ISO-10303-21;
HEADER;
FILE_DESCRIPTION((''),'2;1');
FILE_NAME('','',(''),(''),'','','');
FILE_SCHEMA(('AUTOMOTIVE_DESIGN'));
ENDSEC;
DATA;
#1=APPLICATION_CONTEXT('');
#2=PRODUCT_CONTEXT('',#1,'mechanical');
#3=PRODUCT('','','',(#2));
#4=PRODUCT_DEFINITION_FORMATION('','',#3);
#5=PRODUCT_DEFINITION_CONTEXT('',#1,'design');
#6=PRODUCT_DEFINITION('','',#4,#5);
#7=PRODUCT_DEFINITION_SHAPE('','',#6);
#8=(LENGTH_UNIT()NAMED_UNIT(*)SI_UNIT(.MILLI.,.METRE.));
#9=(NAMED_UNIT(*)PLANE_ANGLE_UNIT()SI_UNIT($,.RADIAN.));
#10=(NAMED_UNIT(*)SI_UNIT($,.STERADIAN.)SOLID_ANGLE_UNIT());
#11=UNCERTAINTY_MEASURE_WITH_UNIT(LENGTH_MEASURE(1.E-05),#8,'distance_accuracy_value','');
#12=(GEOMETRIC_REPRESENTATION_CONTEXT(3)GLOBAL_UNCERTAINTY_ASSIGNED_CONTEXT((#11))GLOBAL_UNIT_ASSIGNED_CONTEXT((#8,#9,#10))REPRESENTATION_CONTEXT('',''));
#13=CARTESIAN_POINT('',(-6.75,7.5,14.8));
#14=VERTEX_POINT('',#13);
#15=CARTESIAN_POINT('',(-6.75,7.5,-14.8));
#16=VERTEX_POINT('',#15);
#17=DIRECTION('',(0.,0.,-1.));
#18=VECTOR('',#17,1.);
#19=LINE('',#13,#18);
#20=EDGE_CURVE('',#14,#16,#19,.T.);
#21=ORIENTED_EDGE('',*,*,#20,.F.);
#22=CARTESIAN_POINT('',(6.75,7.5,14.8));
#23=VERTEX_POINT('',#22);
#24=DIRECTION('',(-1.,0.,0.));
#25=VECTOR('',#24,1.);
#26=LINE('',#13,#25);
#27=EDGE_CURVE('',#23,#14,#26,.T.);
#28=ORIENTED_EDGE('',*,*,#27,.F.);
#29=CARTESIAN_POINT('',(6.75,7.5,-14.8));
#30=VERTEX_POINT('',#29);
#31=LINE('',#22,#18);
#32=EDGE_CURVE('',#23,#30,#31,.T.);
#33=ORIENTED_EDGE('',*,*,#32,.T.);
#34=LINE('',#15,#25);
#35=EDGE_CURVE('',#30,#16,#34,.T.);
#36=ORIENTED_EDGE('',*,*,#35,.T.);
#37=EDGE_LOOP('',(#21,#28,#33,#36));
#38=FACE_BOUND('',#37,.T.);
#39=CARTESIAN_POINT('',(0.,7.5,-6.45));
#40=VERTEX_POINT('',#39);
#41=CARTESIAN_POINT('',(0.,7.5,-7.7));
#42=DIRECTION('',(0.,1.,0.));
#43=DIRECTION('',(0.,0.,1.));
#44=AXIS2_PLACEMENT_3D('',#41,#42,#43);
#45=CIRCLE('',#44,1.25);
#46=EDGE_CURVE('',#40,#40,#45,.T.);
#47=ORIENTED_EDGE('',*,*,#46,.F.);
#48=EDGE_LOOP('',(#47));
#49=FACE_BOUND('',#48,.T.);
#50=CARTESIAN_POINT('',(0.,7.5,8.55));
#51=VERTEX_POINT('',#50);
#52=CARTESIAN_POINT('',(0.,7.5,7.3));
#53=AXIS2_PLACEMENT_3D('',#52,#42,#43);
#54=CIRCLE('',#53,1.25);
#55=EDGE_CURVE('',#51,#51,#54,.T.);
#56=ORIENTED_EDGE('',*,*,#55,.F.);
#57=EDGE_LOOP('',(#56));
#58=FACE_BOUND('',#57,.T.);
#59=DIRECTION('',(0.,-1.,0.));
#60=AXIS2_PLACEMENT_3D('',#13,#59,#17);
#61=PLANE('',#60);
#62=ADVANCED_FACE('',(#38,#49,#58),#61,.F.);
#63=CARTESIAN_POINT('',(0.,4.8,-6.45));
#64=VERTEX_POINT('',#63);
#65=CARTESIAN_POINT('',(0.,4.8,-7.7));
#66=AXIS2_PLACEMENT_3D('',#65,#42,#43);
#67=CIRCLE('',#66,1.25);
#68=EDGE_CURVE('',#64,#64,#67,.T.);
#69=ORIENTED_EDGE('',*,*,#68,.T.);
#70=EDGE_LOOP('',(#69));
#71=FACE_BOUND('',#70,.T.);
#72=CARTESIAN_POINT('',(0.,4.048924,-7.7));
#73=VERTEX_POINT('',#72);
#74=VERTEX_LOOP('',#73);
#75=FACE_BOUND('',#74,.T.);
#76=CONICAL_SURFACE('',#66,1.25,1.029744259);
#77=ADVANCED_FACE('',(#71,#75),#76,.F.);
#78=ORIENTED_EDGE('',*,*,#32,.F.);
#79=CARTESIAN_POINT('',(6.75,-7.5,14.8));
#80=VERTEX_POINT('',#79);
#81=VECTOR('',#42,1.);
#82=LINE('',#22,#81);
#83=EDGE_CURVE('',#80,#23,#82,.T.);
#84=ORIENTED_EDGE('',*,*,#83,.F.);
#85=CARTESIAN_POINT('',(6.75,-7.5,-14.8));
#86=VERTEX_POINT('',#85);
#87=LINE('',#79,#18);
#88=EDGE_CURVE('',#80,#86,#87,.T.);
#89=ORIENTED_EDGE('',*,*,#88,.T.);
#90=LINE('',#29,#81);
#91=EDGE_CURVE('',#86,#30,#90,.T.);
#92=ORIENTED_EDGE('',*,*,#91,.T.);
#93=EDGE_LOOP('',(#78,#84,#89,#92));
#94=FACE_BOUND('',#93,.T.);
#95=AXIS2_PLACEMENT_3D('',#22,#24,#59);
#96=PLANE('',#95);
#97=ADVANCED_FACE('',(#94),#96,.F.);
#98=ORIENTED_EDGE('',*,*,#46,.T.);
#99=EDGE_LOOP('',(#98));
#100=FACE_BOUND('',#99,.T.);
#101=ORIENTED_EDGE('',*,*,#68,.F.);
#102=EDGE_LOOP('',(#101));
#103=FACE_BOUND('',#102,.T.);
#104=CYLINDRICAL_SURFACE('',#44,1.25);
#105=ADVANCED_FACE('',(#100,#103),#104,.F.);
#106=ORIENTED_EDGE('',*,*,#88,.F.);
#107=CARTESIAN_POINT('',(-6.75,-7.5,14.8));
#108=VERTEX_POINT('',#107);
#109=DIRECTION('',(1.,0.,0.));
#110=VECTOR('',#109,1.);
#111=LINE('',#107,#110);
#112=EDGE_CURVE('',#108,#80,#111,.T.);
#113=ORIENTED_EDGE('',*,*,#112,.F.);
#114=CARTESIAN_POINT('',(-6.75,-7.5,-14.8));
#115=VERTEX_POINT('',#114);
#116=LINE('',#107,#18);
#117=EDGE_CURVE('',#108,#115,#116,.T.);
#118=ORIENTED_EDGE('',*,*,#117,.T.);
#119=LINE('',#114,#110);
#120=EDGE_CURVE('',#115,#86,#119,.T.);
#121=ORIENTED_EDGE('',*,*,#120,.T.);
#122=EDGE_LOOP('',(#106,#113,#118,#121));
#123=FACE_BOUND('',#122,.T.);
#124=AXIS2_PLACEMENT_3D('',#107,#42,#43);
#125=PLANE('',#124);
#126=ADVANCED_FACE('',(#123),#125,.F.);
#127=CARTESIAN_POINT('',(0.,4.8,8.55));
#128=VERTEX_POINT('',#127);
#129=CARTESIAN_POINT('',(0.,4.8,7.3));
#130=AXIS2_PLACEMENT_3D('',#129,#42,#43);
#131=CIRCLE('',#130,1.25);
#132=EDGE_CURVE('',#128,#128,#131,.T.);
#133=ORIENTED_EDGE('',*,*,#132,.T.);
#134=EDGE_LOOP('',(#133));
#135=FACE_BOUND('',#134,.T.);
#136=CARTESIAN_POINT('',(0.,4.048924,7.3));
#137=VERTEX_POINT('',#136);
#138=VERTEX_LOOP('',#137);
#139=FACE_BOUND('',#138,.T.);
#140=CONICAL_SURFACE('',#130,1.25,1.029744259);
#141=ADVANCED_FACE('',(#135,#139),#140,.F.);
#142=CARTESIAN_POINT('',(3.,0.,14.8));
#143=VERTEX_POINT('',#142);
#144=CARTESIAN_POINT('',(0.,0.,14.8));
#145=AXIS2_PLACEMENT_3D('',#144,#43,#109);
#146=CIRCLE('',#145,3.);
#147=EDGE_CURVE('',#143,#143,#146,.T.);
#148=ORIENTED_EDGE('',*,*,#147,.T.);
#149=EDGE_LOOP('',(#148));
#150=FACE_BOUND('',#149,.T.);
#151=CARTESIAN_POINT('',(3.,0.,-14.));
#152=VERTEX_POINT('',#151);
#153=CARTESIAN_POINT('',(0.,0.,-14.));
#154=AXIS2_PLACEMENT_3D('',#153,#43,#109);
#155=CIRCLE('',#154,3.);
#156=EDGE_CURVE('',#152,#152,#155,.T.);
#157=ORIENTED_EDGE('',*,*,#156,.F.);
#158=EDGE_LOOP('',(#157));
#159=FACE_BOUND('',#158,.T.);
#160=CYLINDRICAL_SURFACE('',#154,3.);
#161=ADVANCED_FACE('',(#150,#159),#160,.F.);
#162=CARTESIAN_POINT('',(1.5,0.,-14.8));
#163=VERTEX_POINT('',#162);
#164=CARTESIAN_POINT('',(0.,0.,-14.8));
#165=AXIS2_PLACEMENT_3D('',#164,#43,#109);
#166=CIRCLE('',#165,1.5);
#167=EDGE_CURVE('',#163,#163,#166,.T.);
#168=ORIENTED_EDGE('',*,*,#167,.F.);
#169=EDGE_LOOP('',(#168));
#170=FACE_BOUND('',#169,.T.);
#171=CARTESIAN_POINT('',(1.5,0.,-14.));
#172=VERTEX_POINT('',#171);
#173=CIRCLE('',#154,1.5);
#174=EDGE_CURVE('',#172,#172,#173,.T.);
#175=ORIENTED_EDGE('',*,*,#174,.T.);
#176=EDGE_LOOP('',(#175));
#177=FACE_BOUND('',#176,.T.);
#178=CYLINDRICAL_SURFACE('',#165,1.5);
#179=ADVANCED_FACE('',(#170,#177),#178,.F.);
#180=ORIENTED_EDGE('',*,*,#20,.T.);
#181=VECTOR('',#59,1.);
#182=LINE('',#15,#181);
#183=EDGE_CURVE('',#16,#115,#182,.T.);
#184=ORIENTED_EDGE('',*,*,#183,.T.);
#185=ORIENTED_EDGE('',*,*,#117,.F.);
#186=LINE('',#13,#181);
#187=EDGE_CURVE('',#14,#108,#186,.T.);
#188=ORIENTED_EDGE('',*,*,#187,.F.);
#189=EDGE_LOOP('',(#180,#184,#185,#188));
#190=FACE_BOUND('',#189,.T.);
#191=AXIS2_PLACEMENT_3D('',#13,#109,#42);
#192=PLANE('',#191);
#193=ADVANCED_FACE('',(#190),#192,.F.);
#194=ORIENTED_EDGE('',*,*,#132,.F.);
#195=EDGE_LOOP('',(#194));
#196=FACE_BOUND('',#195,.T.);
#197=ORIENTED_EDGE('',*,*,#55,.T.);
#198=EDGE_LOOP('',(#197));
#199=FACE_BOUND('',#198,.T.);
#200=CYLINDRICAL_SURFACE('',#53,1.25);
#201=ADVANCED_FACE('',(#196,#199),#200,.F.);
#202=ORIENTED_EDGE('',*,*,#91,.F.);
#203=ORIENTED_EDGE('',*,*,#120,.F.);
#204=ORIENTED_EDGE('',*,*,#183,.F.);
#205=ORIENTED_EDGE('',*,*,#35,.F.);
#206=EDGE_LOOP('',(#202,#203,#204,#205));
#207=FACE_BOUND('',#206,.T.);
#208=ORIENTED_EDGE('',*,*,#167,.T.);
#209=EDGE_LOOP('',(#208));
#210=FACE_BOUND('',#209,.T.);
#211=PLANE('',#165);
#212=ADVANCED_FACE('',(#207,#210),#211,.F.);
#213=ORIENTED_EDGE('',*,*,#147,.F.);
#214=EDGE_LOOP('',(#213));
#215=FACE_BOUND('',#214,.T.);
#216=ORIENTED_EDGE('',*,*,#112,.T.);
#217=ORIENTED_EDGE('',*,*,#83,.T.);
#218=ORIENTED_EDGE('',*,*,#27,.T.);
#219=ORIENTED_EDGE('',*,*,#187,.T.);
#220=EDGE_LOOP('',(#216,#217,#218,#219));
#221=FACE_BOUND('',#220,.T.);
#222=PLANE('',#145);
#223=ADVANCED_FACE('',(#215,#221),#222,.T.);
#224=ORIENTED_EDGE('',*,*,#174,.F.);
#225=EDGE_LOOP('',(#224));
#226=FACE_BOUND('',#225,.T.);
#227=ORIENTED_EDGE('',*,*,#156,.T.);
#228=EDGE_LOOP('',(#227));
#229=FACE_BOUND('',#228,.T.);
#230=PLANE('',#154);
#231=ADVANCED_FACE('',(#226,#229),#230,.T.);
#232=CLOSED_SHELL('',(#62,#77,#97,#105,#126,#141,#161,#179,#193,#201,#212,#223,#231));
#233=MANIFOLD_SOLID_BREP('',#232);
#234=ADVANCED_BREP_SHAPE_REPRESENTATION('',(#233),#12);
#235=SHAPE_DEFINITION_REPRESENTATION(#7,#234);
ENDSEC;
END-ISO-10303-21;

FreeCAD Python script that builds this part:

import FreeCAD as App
import Part
import Sketcher
from FreeCAD import Vector


def add_polygon(sketch, points):
    """Adds a closed chain of lines whose ends are joined by coincident constraints."""
    first, n = sketch.GeometryCount, len(points)
    for a, b in zip(points, points[1:] + points[:1]):
        sketch.addGeometry(Part.LineSegment(App.Vector(*a, 0), App.Vector(*b, 0)), False)
    for i in range(n):
        sketch.addConstraint(Sketcher.Constraint("Coincident", first + i, 2, first + (i + 1) % n, 1))

doc = App.newDocument("Part")
body = doc.addObject("PartDesign::Body", "Body")

# Sketch on XY plane
sketch1 = doc.addObject("Sketcher::SketchObject", "Sketch")
body.addObject(sketch1)
sketch1.AttachmentSupport = (doc.XY_Plane, [""])
sketch1.MapMode = "FlatFace"
add_polygon(sketch1, [(-7, 8), (-7, -8), (7, -8), (7, 8)])  # lines 0-3
sketch1.addConstraint(Sketcher.Constraint("Vertical", 0))
sketch1.addConstraint(Sketcher.Constraint("Horizontal", 1))
sketch1.addConstraint(Sketcher.Constraint("Vertical", 2))
sketch1.addConstraint(Sketcher.Constraint("Horizontal", 3))
sketch1.addConstraint(Sketcher.Constraint("Symmetric", 0, 2, 2, 2, -1, 1))
sketch1.addConstraint(Sketcher.Constraint("DistanceY", 0, 2, 0, 1, 15.0))
sketch1.addConstraint(Sketcher.Constraint("DistanceX", 1, 1, 1, 2, 13.5))
pad1 = doc.addObject("PartDesign::Pad", "Pad")
body.addObject(pad1)
pad1.Profile = sketch1
pad1.Length = 29.6
pad1.Midplane = True

# Sketch on XY plane
sketch2 = doc.addObject("Sketcher::SketchObject", "Sketch001")
body.addObject(sketch2)
sketch2.AttachmentSupport = (doc.XY_Plane, [""])
sketch2.MapMode = "FlatFace"
sketch2.AttachmentOffset = App.Placement(Vector(0, 0, 14.8), App.Rotation())
sketch2.addGeometry(Part.Circle(Vector(0, 0, 0), Vector(0, 0, 1), 3), False)
sketch2.addConstraint(Sketcher.Constraint("Coincident", 0, 3, -1, 1))
sketch2.addConstraint(Sketcher.Constraint("Diameter", 0, 6.0))
pocket1 = doc.addObject("PartDesign::Pocket", "Pocket")
body.addObject(pocket1)
pocket1.Profile = sketch2
pocket1.Length = 28.8

# Sketch on XY plane
sketch3 = doc.addObject("Sketcher::SketchObject", "Sketch002")
body.addObject(sketch3)
sketch3.AttachmentSupport = (doc.XY_Plane, [""])
sketch3.MapMode = "FlatFace"
sketch3.AttachmentOffset = App.Placement(Vector(0, 0, 14.8), App.Rotation())
sketch3.addGeometry(Part.Circle(Vector(0, 0, 0), Vector(0, 0, 1), 1.5), False)
sketch3.addConstraint(Sketcher.Constraint("Coincident", 0, 3, -1, 1))
sketch3.addConstraint(Sketcher.Constraint("Diameter", 0, 3.0))
pocket2 = doc.addObject("PartDesign::Pocket", "Pocket001")
body.addObject(pocket2)
pocket2.Profile = sketch3
pocket2.Type = "ThroughAll"

# Sketch on XZ plane
sketch4 = doc.addObject("Sketcher::SketchObject", "Sketch003")
body.addObject(sketch4)
sketch4.AttachmentSupport = (doc.XZ_Plane, [""])
sketch4.MapMode = "FlatFace"
sketch4.AttachmentOffset = App.Placement(Vector(0, 0, -7.5), App.Rotation())
sketch4.addGeometry(Part.Circle(Vector(0, -7.7, 0), Vector(0, 0, 1), 1.2), False)
sketch4.addGeometry(Part.Circle(Vector(0, 7.3, 0), Vector(0, 0, 1), 1.2), False)
sketch4.addConstraint(Sketcher.Constraint("Equal", 0, 1))
sketch4.addConstraint(Sketcher.Constraint("PointOnObject", 0, 3, -2))
sketch4.addConstraint(Sketcher.Constraint("PointOnObject", 1, 3, -2))
sketch4.addConstraint(Sketcher.Constraint("Diameter", 0, 2.5))
sketch4.addConstraint(Sketcher.Constraint("DistanceY", 0, 3, 1, 3, 15.0))
sketch4.addConstraint(Sketcher.Constraint("DistanceY", 0, 3, -1, 1, 7.7))
doc.recompute()
hole = doc.addObject("PartDesign::Hole", "Hole")
body.addObject(hole)
hole.Profile = sketch4
hole.ThreadType = "None"
hole.Diameter = 2.5
hole.DepthType = "Dimension"
hole.Depth = 2.7
hole.DrillPoint = "Angled"
hole.DrillPointAngle = 118
hole.Reversed = True

doc.recompute()
